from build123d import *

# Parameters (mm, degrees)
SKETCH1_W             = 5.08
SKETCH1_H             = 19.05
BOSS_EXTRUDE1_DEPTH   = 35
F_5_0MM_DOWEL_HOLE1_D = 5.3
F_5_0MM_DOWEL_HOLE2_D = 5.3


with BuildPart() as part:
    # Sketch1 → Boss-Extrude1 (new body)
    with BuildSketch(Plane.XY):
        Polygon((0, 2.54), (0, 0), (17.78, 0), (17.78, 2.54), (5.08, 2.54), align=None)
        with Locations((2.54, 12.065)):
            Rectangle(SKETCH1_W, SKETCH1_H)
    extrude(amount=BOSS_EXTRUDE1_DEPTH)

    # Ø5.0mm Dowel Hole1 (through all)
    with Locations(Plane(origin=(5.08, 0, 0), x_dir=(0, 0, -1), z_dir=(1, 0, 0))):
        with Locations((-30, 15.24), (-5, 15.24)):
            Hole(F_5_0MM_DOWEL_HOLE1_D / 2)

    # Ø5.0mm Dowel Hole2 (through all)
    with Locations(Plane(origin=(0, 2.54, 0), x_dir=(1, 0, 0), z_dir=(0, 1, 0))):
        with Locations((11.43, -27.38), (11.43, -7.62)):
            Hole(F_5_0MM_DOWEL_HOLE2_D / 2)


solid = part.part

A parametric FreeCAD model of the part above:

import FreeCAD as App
import Part
import Sketcher
from FreeCAD import Vector
Q = App.Units.Quantity


def add_polygon(sketch, points):
    """Adds a closed chain of lines whose ends are joined by coincident constraints."""
    first, n = sketch.GeometryCount, len(points)
    for a, b in zip(points, points[1:] + points[:1]):
        sketch.addGeometry(Part.LineSegment(App.Vector(*a, 0), App.Vector(*b, 0)), False)
    for i in range(n):
        sketch.addConstraint(Sketcher.Constraint("Coincident", first + i, 2, first + (i + 1) % n, 1))

doc = App.newDocument("Part")
body = doc.addObject("PartDesign::Body", "Body")

# Sketch on XY plane
sketch1 = body.newObject("Sketcher::SketchObject", "Sketch")
sketch1.AttachmentSupport = (doc.getObject("XY_Plane"), [""])
sketch1.MapMode = "FlatFace"
add_polygon(sketch1, [(0, 0), (17.78, 0), (17.78, 2.54), (5.08, 2.54), (5.08, 21.59), (0, 21.59)])  # lines 0-5
sketch1.addConstraint([
    Sketcher.Constraint("Horizontal", 0),
    Sketcher.Constraint("Vertical", 1),
    Sketcher.Constraint("Horizontal", 2),
    Sketcher.Constraint("Vertical", 3),
    Sketcher.Constraint("Horizontal", 4),
    Sketcher.Constraint("Vertical", 5),
    Sketcher.Constraint("Coincident", 5, 2, -1, 1),
    Sketcher.Constraint("DistanceX", 0, 1, 0, 2, Q("0.7 in")),
    Sketcher.Constraint("DistanceX", 2, 2, 2, 1, Q("0.5 in")),
    Sketcher.Constraint("DistanceY", 1, 1, 1, 2, Q("0.1 in")),
    Sketcher.Constraint("DistanceY", 3, 1, 3, 2, Q("0.75 in")),
])
pad1 = body.newObject("PartDesign::Pad", "Pad")
pad1.Profile = sketch1
pad1.Length = 35

# Sketch on YZ plane
sketch2 = body.newObject("Sketcher::SketchObject", "Sketch001")
sketch2.AttachmentSupport = (doc.getObject("YZ_Plane"), [""])
sketch2.MapMode = "FlatFace"
sketch2.AttachmentOffset = App.Placement(Vector(0, 0, 0.2 * 25.4), App.Rotation())
sketch2.addGeometry([
    Part.Circle(Vector(15.24, 30, 0), Vector(0, 0, 1), 2.65),
    Part.Circle(Vector(15.24, 5, 0), Vector(0, 0, 1), 2.65),
], False)
sketch2.addConstraint([
    Sketcher.Constraint("Equal", 0, 1),
    Sketcher.Constraint("Vertical", 0, 3, 1, 3),
    Sketcher.Constraint("DistanceX", -1, 1, 0, 3, Q("0.6 in")),
    Sketcher.Constraint("Diameter", 0, 5.3),
    Sketcher.Constraint("DistanceY", -1, 1, 0, 3, 30.0),
    Sketcher.Constraint("DistanceY", -1, 1, 1, 3, 5.0),
])
doc.recompute()
hole = body.newObject("PartDesign::Hole", "Hole")
hole.Profile = sketch2
hole.ThreadType = "None"
hole.Diameter = 5.3
hole.DepthType = "ThroughAll"

# Sketch on XZ plane
sketch3 = body.newObject("Sketcher::SketchObject", "Sketch002")
sketch3.AttachmentSupport = (doc.getObject("XZ_Plane"), [""])
sketch3.MapMode = "FlatFace"
sketch3.AttachmentOffset = App.Placement(Vector(0, 0, -0.1 * 25.4), App.Rotation())
sketch3.addGeometry([
    Part.Circle(Vector(11.43, 27.38, 0), Vector(0, 0, 1), 2.65),
    Part.Circle(Vector(11.43, 7.62, 0), Vector(0, 0, 1), 2.65),
], False)
sketch3.addConstraint([
    Sketcher.Constraint("Equal", 0, 1),
    Sketcher.Constraint("Vertical", 0, 3, 1, 3),
    Sketcher.Constraint("DistanceY", -1, 1, 1, 3, Q("0.3 in")),
    Sketcher.Constraint("Diameter", 0, 5.3),
    Sketcher.Constraint("DistanceX", -1, 1, 0, 3, Q("0.45 in")),
    Sketcher.Constraint("DistanceY", -1, 1, 0, 3, 27.38),
])
doc.recompute()
hole2 = body.newObject("PartDesign::Hole", "Hole001")
hole2.Profile = sketch3
hole2.ThreadType = "None"
hole2.Diameter = 5.3
hole2.DepthType = "ThroughAll"
hole2.Reversed = True

doc.recompute()
